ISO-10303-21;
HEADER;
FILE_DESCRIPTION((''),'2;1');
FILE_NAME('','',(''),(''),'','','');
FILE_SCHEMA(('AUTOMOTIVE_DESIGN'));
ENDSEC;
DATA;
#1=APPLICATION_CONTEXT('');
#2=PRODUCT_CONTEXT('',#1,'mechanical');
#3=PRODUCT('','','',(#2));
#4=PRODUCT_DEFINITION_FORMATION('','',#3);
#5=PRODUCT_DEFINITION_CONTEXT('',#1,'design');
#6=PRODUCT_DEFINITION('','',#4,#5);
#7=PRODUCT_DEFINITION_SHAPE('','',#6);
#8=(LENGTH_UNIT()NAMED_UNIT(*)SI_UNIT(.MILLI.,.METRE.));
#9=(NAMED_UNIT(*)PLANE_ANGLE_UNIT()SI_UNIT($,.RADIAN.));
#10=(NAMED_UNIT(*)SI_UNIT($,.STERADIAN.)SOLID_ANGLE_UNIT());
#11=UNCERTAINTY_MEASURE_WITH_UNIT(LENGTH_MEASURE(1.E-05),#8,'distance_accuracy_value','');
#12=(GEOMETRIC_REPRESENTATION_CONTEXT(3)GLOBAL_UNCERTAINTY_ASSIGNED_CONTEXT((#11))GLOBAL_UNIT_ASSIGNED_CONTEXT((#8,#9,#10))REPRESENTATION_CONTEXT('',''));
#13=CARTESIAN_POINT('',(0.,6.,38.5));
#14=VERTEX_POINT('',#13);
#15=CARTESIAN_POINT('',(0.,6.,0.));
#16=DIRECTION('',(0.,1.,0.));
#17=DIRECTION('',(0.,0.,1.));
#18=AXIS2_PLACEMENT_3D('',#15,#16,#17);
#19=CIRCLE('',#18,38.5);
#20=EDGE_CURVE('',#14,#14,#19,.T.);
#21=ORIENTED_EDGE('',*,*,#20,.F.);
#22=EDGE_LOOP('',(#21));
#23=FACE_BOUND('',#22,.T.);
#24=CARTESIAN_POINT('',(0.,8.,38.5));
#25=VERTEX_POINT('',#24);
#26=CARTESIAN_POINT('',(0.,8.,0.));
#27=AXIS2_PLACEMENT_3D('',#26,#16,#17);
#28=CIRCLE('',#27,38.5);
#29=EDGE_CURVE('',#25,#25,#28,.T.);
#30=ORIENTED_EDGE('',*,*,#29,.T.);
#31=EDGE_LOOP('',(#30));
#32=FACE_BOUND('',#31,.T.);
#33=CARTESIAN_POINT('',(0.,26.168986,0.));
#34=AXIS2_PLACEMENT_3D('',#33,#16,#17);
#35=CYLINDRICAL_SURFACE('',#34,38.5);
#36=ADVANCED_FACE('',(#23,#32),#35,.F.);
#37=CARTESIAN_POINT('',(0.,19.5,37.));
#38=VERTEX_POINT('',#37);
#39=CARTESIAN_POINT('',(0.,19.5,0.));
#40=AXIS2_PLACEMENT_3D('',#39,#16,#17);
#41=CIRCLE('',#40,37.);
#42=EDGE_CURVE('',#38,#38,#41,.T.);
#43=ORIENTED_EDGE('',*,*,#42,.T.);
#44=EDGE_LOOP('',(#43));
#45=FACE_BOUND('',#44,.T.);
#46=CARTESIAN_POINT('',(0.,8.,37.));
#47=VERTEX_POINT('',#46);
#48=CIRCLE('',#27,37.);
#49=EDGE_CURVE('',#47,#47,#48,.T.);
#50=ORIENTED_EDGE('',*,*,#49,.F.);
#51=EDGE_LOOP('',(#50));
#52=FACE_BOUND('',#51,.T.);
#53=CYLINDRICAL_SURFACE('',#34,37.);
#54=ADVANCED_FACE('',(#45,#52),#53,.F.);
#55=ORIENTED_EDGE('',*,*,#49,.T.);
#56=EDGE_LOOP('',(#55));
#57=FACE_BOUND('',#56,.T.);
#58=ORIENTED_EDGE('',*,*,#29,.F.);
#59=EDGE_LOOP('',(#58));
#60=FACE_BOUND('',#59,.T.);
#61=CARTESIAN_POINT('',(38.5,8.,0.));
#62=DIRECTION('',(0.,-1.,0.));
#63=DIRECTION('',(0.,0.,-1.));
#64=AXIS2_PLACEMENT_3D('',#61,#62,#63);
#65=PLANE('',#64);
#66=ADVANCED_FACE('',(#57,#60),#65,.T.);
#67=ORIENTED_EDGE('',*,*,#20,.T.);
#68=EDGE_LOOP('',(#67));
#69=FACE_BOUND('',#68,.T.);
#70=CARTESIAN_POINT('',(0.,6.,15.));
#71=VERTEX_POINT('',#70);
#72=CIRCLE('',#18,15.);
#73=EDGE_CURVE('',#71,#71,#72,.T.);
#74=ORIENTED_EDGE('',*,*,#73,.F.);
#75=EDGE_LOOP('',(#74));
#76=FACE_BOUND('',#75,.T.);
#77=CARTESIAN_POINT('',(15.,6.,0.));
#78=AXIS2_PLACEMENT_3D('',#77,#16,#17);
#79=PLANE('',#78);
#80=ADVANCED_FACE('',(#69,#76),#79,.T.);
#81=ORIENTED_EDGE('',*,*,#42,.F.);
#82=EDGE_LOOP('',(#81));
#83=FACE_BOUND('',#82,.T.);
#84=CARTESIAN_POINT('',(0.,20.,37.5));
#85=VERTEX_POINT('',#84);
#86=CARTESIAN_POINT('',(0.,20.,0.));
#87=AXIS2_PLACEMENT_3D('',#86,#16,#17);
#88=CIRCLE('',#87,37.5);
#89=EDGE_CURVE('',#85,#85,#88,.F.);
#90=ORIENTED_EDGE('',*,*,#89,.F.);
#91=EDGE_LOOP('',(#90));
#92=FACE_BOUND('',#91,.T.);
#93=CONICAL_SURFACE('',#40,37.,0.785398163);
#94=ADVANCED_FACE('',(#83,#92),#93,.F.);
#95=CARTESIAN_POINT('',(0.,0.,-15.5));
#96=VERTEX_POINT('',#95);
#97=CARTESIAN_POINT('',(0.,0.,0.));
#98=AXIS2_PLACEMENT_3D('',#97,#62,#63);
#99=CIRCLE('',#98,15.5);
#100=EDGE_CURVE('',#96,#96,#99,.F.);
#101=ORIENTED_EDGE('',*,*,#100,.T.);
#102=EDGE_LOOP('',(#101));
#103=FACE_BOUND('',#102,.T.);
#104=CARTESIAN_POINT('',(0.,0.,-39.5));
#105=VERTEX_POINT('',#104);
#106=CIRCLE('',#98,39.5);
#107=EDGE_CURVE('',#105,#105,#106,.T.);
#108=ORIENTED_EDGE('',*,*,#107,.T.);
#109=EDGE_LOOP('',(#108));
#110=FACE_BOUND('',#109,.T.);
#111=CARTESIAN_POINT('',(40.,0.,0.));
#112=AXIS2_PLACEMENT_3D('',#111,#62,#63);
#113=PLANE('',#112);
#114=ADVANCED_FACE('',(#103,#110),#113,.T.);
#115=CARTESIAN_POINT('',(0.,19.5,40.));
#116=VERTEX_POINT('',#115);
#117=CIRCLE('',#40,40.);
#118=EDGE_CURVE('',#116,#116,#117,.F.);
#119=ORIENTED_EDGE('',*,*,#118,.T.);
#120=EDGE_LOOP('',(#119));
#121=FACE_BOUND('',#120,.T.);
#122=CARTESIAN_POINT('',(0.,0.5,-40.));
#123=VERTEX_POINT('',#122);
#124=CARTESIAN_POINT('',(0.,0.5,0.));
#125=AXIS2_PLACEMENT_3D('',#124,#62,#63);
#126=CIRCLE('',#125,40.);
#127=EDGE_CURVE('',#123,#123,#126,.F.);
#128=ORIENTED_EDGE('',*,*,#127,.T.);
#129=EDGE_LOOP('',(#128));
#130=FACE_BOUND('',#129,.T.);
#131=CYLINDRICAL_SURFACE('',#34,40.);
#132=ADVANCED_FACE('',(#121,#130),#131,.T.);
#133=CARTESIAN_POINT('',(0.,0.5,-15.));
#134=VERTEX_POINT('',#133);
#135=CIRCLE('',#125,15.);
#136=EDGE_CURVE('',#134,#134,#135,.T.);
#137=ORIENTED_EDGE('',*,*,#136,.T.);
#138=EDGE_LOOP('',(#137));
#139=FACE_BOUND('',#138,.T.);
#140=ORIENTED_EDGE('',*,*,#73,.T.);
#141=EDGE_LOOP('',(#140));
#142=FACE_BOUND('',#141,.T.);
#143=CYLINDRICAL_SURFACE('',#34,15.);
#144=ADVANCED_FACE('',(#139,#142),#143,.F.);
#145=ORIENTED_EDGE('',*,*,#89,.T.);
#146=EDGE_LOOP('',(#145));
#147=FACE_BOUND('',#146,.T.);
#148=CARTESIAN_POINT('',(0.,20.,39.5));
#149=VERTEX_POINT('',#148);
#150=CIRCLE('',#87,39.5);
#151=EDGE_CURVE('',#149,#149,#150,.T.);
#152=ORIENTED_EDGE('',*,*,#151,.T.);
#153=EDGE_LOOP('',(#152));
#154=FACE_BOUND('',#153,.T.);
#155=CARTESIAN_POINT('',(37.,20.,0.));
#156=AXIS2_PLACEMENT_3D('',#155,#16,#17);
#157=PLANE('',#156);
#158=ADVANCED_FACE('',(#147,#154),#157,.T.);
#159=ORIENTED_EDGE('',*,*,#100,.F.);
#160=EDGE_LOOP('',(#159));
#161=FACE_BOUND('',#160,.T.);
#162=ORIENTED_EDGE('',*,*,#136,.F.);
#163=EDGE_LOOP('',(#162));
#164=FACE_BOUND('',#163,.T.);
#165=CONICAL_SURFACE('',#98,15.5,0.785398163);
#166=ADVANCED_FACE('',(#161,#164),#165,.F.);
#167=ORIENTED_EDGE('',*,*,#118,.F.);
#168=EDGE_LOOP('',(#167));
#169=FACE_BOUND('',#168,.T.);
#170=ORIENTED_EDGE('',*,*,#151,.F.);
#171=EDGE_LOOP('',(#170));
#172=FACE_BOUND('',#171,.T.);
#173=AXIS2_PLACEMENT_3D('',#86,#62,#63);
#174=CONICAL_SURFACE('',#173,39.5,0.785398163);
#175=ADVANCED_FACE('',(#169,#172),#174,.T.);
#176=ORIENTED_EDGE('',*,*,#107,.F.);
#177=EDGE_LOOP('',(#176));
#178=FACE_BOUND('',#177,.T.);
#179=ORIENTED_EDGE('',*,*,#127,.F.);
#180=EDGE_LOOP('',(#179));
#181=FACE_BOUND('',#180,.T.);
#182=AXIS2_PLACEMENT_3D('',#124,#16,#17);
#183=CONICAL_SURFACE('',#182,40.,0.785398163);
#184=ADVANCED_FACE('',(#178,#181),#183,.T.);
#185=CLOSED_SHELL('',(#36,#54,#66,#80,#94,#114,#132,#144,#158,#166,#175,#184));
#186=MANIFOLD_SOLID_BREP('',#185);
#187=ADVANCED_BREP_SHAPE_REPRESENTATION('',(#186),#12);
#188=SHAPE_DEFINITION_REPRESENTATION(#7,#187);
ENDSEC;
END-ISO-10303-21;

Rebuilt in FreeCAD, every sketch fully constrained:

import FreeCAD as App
import Part
import Sketcher


def edges_at(feature, points):
    """Names of the edges that pass closest to the given points."""
    edges = feature.Shape.Edges
    near = lambda p: min(range(len(edges)), key=lambda i: edges[i].distToShape(Part.Vertex(*p))[0])
    return sorted({f"Edge{near(p) + 1}" for p in points})

doc = App.newDocument("Part")
body = doc.addObject("PartDesign::Body", "Body")

# Sketch on XY plane
sketch1 = body.newObject("Sketcher::SketchObject", "Sketch")
sketch1.AttachmentSupport = (doc.getObject("XY_Plane"), [""])
sketch1.MapMode = "FlatFace"
sketch1.addGeometry(Part.LineSegment(App.Vector(-40, 20, 0), App.Vector(-40, 0, 0)), False)
sketch1.addGeometry(Part.LineSegment(App.Vector(-40, 0, 0), App.Vector(-15, 0, 0)), False)
sketch1.addGeometry(Part.LineSegment(App.Vector(-15, 0, 0), App.Vector(-15, 6, 0)), False)
sketch1.addGeometry(Part.LineSegment(App.Vector(-15, 6, 0), App.Vector(-38.5, 6, 0)), False)
sketch1.addGeometry(Part.LineSegment(App.Vector(-38.5, 6, 0), App.Vector(-38.5, 8, 0)), False)
sketch1.addGeometry(Part.LineSegment(App.Vector(-38.5, 8, 0), App.Vector(-37, 8, 0)), False)
sketch1.addGeometry(Part.LineSegment(App.Vector(-37, 8, 0), App.Vector(-37, 20, 0)), False)
sketch1.addGeometry(Part.LineSegment(App.Vector(-37, 20, 0), App.Vector(-40, 20, 0)), False)
sketch1.addConstraint(Sketcher.Constraint("Coincident", 0, 2, 1, 1))
sketch1.addConstraint(Sketcher.Constraint("Coincident", 1, 2, 2, 1))
sketch1.addConstraint(Sketcher.Constraint("Coincident", 2, 2, 3, 1))
sketch1.addConstraint(Sketcher.Constraint("Coincident", 3, 2, 4, 1))
sketch1.addConstraint(Sketcher.Constraint("Coincident", 4, 2, 5, 1))
sketch1.addConstraint(Sketcher.Constraint("Coincident", 5, 2, 6, 1))
sketch1.addConstraint(Sketcher.Constraint("Coincident", 6, 2, 7, 1))
sketch1.addConstraint(Sketcher.Constraint("Coincident", 7, 2, 0, 1))
sketch1.addConstraint(Sketcher.Constraint("Vertical", 0))
sketch1.addConstraint(Sketcher.Constraint("Horizontal", 1))
sketch1.addConstraint(Sketcher.Constraint("Vertical", 2))
sketch1.addConstraint(Sketcher.Constraint("Horizontal", 3))
sketch1.addConstraint(Sketcher.Constraint("Vertical", 4))
sketch1.addConstraint(Sketcher.Constraint("Horizontal", 5))
sketch1.addConstraint(Sketcher.Constraint("Vertical", 6))
sketch1.addConstraint(Sketcher.Constraint("Horizontal", 7))
sketch1.addConstraint(Sketcher.Constraint("PointOnObject", 0, 2, -1))
sketch1.addConstraint(Sketcher.Constraint("DistanceX", 1, 1, 1, 2, 25.0))
sketch1.addConstraint(Sketcher.Constraint("DistanceX", 7, 2, 7, 1, 3.0))
sketch1.addConstraint(Sketcher.Constraint("DistanceY", 0, 2, 0, 1, 20.0))
sketch1.addConstraint(Sketcher.Constraint("DistanceY", 2, 1, 2, 2, 6.0))
sketch1.addConstraint(Sketcher.Constraint("DistanceY", 4, 1, 4, 2, 2.0))
sketch1.addConstraint(Sketcher.Constraint("DistanceX", 3, 2, 3, 1, 23.5))
sketch1.addConstraint(Sketcher.Constraint("DistanceX", 0, 2, -1, 1, 40.0))
revolution = body.newObject("PartDesign::Revolution", "Revolution")
revolution.Profile = sketch1
revolution.ReferenceAxis = (sketch1, ["V_Axis"])
revolution.Angle = 360
doc.recompute()

chamfer = body.newObject("PartDesign::Chamfer", "Chamfer")
chamfer.Base = (revolution, edges_at(revolution, [
    (0, 20, -40),
    (0, 20, -37),
    (0, 0, -15),
    (0, 0, -40),
]))
chamfer.Size = 0.5

doc.recompute()
